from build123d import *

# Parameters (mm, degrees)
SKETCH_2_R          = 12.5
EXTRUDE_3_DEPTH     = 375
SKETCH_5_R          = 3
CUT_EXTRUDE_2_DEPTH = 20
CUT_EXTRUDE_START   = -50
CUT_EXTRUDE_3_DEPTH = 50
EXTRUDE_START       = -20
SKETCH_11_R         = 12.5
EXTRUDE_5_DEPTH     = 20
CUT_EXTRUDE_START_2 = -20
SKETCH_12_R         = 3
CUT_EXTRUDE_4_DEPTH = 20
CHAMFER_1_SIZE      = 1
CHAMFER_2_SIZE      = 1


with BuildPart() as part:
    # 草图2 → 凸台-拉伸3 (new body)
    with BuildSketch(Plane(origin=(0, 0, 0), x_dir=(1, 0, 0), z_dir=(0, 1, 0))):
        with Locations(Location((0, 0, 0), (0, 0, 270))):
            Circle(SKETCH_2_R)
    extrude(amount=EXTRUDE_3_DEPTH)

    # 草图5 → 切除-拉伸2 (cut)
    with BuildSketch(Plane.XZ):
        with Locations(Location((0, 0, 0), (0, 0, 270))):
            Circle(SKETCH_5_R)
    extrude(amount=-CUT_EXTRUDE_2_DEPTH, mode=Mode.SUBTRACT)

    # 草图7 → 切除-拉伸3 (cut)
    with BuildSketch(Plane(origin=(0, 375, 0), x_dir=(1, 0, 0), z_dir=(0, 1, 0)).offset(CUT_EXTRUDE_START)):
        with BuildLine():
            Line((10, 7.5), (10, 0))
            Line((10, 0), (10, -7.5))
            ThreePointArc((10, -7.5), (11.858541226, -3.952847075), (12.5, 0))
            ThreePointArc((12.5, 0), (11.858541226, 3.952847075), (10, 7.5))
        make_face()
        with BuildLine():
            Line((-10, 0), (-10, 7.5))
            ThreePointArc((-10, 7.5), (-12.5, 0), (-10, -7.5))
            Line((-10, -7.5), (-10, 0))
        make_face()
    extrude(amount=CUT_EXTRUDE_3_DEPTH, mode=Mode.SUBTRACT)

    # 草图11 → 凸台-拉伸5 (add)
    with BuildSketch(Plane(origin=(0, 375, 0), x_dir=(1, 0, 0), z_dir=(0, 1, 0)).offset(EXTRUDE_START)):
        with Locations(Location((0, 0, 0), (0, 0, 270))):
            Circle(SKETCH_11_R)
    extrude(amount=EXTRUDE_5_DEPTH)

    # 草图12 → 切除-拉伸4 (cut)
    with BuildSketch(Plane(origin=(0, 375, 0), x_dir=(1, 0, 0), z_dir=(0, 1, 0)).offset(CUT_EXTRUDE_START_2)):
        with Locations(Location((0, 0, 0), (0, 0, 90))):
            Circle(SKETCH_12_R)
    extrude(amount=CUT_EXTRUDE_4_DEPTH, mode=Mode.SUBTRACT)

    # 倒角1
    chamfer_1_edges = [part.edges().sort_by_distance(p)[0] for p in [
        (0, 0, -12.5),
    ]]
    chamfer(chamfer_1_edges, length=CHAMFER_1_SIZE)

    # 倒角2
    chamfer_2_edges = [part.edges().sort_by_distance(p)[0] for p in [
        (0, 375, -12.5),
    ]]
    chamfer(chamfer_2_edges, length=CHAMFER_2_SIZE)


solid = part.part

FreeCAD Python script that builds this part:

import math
import FreeCAD as App
import Part
import Sketcher

V = App.Vector


def edges_at(feature, points):
    """Names of the edges that pass closest to the given points."""
    edges = feature.Shape.Edges
    near = lambda p: min(range(len(edges)), key=lambda i: edges[i].distToShape(Part.Vertex(*p))[0])
    return sorted({f"Edge{near(p) + 1}" for p in points})

doc = App.newDocument("Part")
body = doc.addObject("PartDesign::Body", "Body")

sketch1 = doc.addObject("Sketcher::SketchObject", "Sketch")
body.addObject(sketch1)
sketch1.AttachmentSupport = (doc.XZ_Plane, [""])
sketch1.MapMode = "FlatFace"
sketch1.addGeometry(Part.Circle(V(0, 0, 0), V(0, 0, 1), 12), False)
sketch1.addConstraint(Sketcher.Constraint("Coincident", 0, 3, -1, 1))
sketch1.addConstraint(Sketcher.Constraint("Diameter", 0, 25.0))
pad1 = doc.addObject("PartDesign::Pad", "Pad")
body.addObject(pad1)
pad1.Profile = sketch1
pad1.Length = 375
pad1.Reversed = True

sketch2 = doc.addObject("Sketcher::SketchObject", "Sketch001")
body.addObject(sketch2)
sketch2.AttachmentSupport = (doc.XZ_Plane, [""])
sketch2.MapMode = "FlatFace"
sketch2.addGeometry(Part.Circle(V(0, 0, 0), V(0, 0, 1), 3), False)
sketch2.addConstraint(Sketcher.Constraint("Coincident", 0, 3, -1, 1))
sketch2.addConstraint(Sketcher.Constraint("Diameter", 0, 6.0))
pocket1 = doc.addObject("PartDesign::Pocket", "Pocket")
body.addObject(pocket1)
pocket1.Profile = sketch2
pocket1.Length = 20

sketch3 = doc.addObject("Sketcher::SketchObject", "Sketch002")
body.addObject(sketch3)
sketch3.AttachmentSupport = (doc.XZ_Plane, [""])
sketch3.MapMode = "FlatFace"
sketch3.AttachmentOffset = App.Placement(V(0, 0, -325), App.Rotation())
sketch3.addGeometry(Part.LineSegment(V(10, -8, 0), V(10, 8, 0)), False)
sketch3.addGeometry(Part.ArcOfCircle(Part.Circle(V(0, 0, 0), V(0, 0, 1), 12), math.radians(0), math.radians(37)), False)
sketch3.addGeometry(Part.ArcOfCircle(Part.Circle(V(0, 0, 0), V(0, 0, 1), 12), math.radians(-37), math.radians(0)), False)
sketch3.addGeometry(Part.ArcOfCircle(Part.Circle(V(0, 0, 0), V(0, 0, 1), 12), math.radians(143), math.radians(217)), False)
sketch3.addGeometry(Part.LineSegment(V(-10, 8, 0), V(-10, -8, 0)), False)
sketch3.addConstraint(Sketcher.Constraint("Coincident", 0, 2, 1, 2))
sketch3.addConstraint(Sketcher.Constraint("Tangent", 1, 1, 2, 2))
sketch3.addConstraint(Sketcher.Constraint("Coincident", 2, 1, 0, 1))
sketch3.addConstraint(Sketcher.Constraint("Coincident", 3, 1, 4, 1))
sketch3.addConstraint(Sketcher.Constraint("Coincident", 4, 2, 3, 2))
sketch3.addConstraint(Sketcher.Constraint("Vertical", 0))
sketch3.addConstraint(Sketcher.Constraint("Vertical", 4))
sketch3.addConstraint(Sketcher.Constraint("Coincident", 1, 3, -1, 1))
sketch3.addConstraint(Sketcher.Constraint("Coincident", 3, 3, -1, 1))
sketch3.addConstraint(Sketcher.Constraint("Equal", 1, 2))
sketch3.addConstraint(Sketcher.Constraint("Equal", 2, 3))
sketch3.addConstraint(Sketcher.Constraint("PointOnObject", 1, 1, -1))
sketch3.addConstraint(Sketcher.Constraint("Horizontal", 0, 2, 3, 1))
sketch3.addConstraint(Sketcher.Constraint("Radius", 1, 12.5))
sketch3.addConstraint(Sketcher.Constraint("DistanceY", 0, 1, 0, 2, 15.0))
pocket2 = doc.addObject("PartDesign::Pocket", "Pocket001")
body.addObject(pocket2)
pocket2.Profile = sketch3
pocket2.Length = 50

sketch4 = doc.addObject("Sketcher::SketchObject", "Sketch003")
body.addObject(sketch4)
sketch4.AttachmentSupport = (doc.XZ_Plane, [""])
sketch4.MapMode = "FlatFace"
sketch4.AttachmentOffset = App.Placement(V(0, 0, -355), App.Rotation())
sketch4.addGeometry(Part.Circle(V(0, 0, 0), V(0, 0, 1), 12), False)
sketch4.addConstraint(Sketcher.Constraint("Coincident", 0, 3, -1, 1))
sketch4.addConstraint(Sketcher.Constraint("Diameter", 0, 25.0))
pad2 = doc.addObject("PartDesign::Pad", "Pad001")
body.addObject(pad2)
pad2.Profile = sketch4
pad2.Length = 20
pad2.Reversed = True

sketch5 = doc.addObject("Sketcher::SketchObject", "Sketch004")
body.addObject(sketch5)
sketch5.AttachmentSupport = (doc.XZ_Plane, [""])
sketch5.MapMode = "FlatFace"
sketch5.AttachmentOffset = App.Placement(V(0, 0, -355), App.Rotation())
sketch5.addGeometry(Part.Circle(V(0, 0, 0), V(0, 0, 1), 3), False)
sketch5.addConstraint(Sketcher.Constraint("Coincident", 0, 3, -1, 1))
sketch5.addConstraint(Sketcher.Constraint("Diameter", 0, 6.0))
pocket3 = doc.addObject("PartDesign::Pocket", "Pocket002")
body.addObject(pocket3)
pocket3.Profile = sketch5
pocket3.Length = 20
doc.recompute()

chamfer = doc.addObject("PartDesign::Chamfer", "Chamfer")
body.addObject(chamfer)
chamfer.Base = (pocket3, edges_at(pocket3, [(0, 0, -12.5)]))
chamfer.Size = 1
doc.recompute()

chamfer2 = doc.addObject("PartDesign::Chamfer", "Chamfer001")
body.addObject(chamfer2)
chamfer2.Base = (chamfer, edges_at(chamfer, [(0, 375, -12.5)]))
chamfer2.Size = 1

doc.recompute()
